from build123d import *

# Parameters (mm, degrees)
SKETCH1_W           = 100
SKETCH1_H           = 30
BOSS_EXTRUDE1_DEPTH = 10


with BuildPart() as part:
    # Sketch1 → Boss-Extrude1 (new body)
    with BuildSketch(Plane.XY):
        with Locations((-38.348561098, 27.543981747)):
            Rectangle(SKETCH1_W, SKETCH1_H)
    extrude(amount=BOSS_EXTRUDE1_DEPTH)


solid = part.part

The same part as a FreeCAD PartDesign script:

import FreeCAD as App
import Part
import Sketcher


def add_polygon(sketch, points):
    """Adds a closed chain of lines whose ends are joined by coincident constraints."""
    first, n = sketch.GeometryCount, len(points)
    for a, b in zip(points, points[1:] + points[:1]):
        sketch.addGeometry(Part.LineSegment(App.Vector(*a, 0), App.Vector(*b, 0)), False)
    for i in range(n):
        sketch.addConstraint(Sketcher.Constraint("Coincident", first + i, 2, first + (i + 1) % n, 1))

doc = App.newDocument("Part")
body = doc.addObject("PartDesign::Body", "Body")

# Sketch on XY plane
sketch1 = body.newObject("Sketcher::SketchObject", "Sketch")
sketch1.AttachmentSupport = (doc.getObject("XY_Plane"), [""])
sketch1.MapMode = "FlatFace"
add_polygon(sketch1, [(-88.348561, 42.543982), (-88.348561, 12.543982), (11.651439, 12.543982), (11.651439, 42.543982)])  # lines 0-3
sketch1.addConstraint([
    Sketcher.Constraint("Vertical", 0),
    Sketcher.Constraint("Horizontal", 1),
    Sketcher.Constraint("Vertical", 2),
    Sketcher.Constraint("Horizontal", 3),
    Sketcher.Constraint("DistanceX", 1, 1, 1, 2, 100.0),
    Sketcher.Constraint("DistanceY", 0, 2, 0, 1, 30.0),
    Sketcher.Constraint("DistanceX", 0, 2, -1, 1, 88.348561),
    Sketcher.Constraint("DistanceY", -1, 1, 0, 2, 12.543982),
])
pad1 = body.newObject("PartDesign::Pad", "Pad")
pad1.Profile = sketch1
pad1.Length = 10

doc.recompute()
